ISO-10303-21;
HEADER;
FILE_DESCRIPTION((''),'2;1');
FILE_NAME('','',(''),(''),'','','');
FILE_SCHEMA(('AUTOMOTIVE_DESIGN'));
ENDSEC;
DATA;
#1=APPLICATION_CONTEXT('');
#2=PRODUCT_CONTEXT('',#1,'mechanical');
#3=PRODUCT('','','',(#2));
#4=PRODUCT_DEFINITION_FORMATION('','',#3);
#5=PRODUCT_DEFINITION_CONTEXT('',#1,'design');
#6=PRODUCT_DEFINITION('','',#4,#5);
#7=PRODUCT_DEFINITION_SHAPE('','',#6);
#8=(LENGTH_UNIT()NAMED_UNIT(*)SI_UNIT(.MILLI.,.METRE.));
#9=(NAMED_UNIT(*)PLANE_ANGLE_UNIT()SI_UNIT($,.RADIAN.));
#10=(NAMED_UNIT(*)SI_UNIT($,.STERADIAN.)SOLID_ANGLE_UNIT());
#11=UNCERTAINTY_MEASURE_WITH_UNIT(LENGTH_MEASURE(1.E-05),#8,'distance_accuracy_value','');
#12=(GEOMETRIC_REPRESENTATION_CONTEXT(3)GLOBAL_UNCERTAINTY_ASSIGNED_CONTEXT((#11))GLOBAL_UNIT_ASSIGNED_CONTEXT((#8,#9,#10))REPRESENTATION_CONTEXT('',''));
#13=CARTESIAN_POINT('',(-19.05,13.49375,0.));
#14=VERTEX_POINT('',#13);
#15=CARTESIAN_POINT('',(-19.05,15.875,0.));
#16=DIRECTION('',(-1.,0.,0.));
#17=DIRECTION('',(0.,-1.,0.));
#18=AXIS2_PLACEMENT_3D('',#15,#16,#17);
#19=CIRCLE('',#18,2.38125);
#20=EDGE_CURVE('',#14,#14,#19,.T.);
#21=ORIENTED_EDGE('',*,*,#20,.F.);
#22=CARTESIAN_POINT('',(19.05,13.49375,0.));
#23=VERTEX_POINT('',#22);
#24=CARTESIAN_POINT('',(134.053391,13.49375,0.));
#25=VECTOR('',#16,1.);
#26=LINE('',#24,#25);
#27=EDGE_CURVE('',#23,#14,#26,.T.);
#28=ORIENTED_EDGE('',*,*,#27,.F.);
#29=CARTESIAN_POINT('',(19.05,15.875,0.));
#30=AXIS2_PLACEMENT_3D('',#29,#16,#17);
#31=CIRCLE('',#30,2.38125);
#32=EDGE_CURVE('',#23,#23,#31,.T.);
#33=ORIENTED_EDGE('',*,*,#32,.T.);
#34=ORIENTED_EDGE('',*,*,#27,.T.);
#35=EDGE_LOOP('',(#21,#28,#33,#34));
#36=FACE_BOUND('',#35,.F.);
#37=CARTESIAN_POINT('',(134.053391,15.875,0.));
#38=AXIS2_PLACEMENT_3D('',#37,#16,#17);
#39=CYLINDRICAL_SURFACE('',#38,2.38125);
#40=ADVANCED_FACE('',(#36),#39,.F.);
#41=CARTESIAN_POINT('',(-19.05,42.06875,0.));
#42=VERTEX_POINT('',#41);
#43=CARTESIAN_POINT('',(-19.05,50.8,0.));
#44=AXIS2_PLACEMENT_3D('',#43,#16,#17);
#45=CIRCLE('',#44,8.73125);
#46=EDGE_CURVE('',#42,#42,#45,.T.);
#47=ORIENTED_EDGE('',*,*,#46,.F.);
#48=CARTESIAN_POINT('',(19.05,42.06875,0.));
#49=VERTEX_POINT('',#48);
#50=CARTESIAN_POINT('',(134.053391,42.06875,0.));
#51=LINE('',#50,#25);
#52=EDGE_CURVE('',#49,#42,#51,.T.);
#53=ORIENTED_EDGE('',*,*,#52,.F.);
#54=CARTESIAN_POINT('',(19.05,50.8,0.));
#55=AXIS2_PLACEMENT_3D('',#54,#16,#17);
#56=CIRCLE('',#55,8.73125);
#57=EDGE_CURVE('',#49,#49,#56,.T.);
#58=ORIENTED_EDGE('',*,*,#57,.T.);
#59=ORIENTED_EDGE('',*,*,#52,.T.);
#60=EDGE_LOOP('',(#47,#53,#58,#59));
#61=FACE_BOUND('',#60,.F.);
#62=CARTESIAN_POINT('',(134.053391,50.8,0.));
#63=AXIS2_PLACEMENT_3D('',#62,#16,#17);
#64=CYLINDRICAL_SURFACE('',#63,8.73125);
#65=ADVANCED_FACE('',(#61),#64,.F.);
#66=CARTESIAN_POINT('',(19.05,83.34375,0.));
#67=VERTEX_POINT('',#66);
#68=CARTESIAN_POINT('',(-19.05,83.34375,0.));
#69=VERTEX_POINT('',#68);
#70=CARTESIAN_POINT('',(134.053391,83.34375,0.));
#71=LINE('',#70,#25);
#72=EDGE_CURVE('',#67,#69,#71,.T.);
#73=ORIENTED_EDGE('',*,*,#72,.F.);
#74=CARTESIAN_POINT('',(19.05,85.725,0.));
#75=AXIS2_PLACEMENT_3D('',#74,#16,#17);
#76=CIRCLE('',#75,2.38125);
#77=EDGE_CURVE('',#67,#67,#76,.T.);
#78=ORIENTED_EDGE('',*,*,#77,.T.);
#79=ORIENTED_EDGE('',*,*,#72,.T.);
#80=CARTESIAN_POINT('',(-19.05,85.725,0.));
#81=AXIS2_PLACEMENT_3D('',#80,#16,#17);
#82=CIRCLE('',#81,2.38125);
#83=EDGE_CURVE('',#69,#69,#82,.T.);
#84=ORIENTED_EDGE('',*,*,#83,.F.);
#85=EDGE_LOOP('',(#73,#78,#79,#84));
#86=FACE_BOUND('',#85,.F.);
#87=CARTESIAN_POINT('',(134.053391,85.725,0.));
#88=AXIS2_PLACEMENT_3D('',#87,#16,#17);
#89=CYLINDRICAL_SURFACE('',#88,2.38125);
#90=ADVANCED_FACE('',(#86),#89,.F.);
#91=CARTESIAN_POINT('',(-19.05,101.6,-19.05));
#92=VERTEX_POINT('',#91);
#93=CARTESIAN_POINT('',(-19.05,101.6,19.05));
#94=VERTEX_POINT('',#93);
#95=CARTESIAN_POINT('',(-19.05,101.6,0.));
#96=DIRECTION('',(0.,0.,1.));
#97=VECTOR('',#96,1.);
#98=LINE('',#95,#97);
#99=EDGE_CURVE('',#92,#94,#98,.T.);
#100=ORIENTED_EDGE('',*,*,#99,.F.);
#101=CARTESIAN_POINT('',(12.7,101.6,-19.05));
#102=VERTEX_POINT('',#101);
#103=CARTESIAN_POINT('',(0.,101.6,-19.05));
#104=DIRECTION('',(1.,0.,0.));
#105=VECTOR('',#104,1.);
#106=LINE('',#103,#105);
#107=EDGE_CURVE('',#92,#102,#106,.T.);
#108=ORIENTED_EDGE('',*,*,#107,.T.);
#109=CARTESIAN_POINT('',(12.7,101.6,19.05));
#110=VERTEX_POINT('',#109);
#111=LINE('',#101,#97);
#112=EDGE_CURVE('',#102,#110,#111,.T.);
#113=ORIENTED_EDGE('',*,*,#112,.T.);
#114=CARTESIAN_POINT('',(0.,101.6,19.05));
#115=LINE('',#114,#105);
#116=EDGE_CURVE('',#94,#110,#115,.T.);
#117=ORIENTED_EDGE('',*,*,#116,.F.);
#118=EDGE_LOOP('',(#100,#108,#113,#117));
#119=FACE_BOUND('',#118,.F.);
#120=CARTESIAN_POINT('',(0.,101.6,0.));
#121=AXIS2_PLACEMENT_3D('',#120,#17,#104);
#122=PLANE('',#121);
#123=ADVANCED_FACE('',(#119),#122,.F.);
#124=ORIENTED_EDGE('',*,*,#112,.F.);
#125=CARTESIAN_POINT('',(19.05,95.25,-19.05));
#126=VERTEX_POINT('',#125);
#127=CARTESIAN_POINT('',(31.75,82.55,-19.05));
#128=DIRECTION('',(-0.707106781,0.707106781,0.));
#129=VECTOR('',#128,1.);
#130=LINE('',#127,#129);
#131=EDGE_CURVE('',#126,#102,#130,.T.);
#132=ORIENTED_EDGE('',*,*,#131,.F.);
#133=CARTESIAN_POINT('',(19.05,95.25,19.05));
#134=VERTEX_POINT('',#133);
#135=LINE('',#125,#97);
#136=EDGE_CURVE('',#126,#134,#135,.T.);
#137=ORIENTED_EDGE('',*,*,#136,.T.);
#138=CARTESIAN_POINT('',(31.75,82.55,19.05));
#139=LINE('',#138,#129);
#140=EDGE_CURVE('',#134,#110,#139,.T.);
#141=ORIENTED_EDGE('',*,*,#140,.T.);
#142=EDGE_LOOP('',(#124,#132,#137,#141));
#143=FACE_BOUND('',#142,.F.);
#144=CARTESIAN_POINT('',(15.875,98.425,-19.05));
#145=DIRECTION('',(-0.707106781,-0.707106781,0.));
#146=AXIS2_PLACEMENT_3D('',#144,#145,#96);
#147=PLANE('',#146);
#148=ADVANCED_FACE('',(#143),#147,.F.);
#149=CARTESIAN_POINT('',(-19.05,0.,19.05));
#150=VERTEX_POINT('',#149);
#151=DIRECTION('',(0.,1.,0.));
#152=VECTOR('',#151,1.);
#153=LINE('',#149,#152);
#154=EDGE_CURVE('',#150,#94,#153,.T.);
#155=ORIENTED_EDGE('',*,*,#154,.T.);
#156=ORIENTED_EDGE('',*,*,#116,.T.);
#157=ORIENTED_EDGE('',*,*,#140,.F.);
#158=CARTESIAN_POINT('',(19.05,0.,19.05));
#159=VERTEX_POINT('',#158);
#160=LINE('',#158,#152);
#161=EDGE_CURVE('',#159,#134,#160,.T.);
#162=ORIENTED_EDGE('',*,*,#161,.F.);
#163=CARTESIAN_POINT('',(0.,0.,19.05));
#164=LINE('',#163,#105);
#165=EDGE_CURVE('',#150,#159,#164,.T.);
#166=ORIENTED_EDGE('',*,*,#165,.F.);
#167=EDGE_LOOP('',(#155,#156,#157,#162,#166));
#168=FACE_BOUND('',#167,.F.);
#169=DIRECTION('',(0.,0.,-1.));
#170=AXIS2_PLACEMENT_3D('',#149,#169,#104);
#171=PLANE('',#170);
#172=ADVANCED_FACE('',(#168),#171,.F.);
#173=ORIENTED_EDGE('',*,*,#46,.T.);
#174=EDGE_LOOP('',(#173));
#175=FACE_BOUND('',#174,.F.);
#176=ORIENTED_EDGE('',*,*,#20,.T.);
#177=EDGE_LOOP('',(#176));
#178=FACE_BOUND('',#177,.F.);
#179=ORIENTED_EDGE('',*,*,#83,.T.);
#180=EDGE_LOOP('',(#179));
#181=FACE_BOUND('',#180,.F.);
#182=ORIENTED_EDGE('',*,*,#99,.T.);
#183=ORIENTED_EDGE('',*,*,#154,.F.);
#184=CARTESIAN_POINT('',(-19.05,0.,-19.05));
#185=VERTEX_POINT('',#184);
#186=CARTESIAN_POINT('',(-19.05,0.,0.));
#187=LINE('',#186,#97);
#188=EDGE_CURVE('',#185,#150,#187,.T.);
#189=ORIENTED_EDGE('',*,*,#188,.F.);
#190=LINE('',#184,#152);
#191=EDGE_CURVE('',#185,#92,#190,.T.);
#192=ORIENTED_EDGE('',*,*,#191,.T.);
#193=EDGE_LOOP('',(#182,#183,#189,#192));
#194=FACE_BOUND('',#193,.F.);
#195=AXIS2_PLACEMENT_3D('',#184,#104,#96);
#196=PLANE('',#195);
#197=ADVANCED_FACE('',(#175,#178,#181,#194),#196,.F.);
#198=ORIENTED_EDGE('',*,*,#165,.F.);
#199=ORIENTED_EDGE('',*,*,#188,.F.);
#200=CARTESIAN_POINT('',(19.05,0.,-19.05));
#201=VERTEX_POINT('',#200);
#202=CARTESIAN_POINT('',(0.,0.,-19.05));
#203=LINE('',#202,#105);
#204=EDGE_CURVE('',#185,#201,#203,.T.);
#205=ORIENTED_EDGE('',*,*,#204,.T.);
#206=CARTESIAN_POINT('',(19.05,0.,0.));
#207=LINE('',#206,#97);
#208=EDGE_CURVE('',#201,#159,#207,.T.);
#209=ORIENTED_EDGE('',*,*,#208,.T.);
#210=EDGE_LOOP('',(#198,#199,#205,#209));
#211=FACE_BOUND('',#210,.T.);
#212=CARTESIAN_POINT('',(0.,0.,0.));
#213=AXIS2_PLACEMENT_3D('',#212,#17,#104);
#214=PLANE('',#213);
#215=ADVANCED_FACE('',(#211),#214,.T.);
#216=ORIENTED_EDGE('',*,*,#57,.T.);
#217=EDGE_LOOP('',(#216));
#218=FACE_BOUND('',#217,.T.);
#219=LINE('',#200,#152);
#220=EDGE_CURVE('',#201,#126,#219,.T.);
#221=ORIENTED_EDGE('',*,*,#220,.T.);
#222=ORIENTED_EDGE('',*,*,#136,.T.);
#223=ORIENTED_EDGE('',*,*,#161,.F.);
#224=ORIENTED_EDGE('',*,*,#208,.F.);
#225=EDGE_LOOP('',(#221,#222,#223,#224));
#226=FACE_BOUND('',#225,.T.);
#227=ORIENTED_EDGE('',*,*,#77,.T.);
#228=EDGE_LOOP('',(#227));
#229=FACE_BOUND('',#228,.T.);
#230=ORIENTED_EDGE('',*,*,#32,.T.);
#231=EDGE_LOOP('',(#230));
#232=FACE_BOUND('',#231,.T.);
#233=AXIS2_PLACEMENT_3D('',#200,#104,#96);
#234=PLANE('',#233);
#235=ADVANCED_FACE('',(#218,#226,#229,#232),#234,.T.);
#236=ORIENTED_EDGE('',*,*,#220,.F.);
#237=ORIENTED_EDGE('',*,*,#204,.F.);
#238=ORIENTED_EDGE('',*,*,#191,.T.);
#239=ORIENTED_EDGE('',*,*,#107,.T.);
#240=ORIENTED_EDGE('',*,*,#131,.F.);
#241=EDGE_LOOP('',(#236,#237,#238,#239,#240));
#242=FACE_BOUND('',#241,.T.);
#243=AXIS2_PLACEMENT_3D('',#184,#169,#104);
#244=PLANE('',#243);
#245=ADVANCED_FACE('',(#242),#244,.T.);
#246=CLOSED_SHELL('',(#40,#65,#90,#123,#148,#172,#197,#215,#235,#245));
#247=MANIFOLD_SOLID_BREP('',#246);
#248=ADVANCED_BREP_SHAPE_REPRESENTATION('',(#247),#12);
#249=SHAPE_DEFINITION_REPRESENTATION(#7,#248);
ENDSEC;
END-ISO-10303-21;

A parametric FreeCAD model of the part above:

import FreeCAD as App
import Part
import Sketcher

V = App.Vector
Q = App.Units.Quantity


def edges_at(feature, points):
    """Names of the edges that pass closest to the given points."""
    edges = feature.Shape.Edges
    near = lambda p: min(range(len(edges)), key=lambda i: edges[i].distToShape(Part.Vertex(*p))[0])
    return sorted({f"Edge{near(p) + 1}" for p in points})

doc = App.newDocument("Part")
body = doc.addObject("PartDesign::Body", "Body")

# Sketch on XZ plane
sketch1 = doc.addObject("Sketcher::SketchObject", "Sketch")
body.addObject(sketch1)
sketch1.AttachmentSupport = (doc.XZ_Plane, [""])
sketch1.MapMode = "FlatFace"
sketch1.addGeometry([
    Part.LineSegment(V(-19.05, 19.05, 0), V(-19.05, -19.05, 0)),
    Part.LineSegment(V(-19.05, -19.05, 0), V(19.05, -19.05, 0)),
    Part.LineSegment(V(19.05, -19.05, 0), V(19.05, 19.05, 0)),
    Part.LineSegment(V(19.05, 19.05, 0), V(-19.05, 19.05, 0)),
], False)
sketch1.addConstraint([
    Sketcher.Constraint("Coincident", 0, 2, 1, 1),
    Sketcher.Constraint("Coincident", 1, 2, 2, 1),
    Sketcher.Constraint("Coincident", 2, 2, 3, 1),
    Sketcher.Constraint("Coincident", 3, 2, 0, 1),
    Sketcher.Constraint("Vertical", 0),
    Sketcher.Constraint("Horizontal", 1),
    Sketcher.Constraint("Vertical", 2),
    Sketcher.Constraint("Horizontal", 3),
    Sketcher.Constraint("Symmetric", 0, 2, 2, 2, -1, 1),
    Sketcher.Constraint("Equal", 3, 0),
    Sketcher.Constraint("DistanceX", 1, 1, 1, 2, Q("1.5 in")),
])
pad1 = doc.addObject("PartDesign::Pad", "Pad")
body.addObject(pad1)
pad1.Profile = sketch1
pad1.Length = Q("4 in")
pad1.Reversed = True
doc.recompute()

chamfer = doc.addObject("PartDesign::Chamfer", "Chamfer")
body.addObject(chamfer)
chamfer.Base = (pad1, edges_at(pad1, [(19.05, 101.6, 0)]))
chamfer.Size = Q("0.25 in")

# Sketch on YZ plane
sketch2 = doc.addObject("Sketcher::SketchObject", "Sketch001")
body.addObject(sketch2)
sketch2.AttachmentSupport = (doc.YZ_Plane, [""])
sketch2.MapMode = "FlatFace"
sketch2.AttachmentOffset = App.Placement(V(0, 0, 0.75 * 25.4), App.Rotation())
sketch2.addGeometry(Part.Circle(V(50.8, 0, 0), V(0, 0, 1), 8.73125), False)
sketch2.addConstraint([
    Sketcher.Constraint("PointOnObject", 0, 3, -1),
    Sketcher.Constraint("Diameter", 0, Q("0.6875 in")),
    Sketcher.Constraint("DistanceX", -1, 1, 0, 3, Q("2 in")),
])
doc.recompute()
hole = doc.addObject("PartDesign::Hole", "Hole")
body.addObject(hole)
hole.Profile = sketch2
hole.ThreadType = "None"
hole.Diameter = Q("0.6875 in")
hole.DepthType = "ThroughAll"

# Sketch on YZ plane
sketch3 = doc.addObject("Sketcher::SketchObject", "Sketch002")
body.addObject(sketch3)
sketch3.AttachmentSupport = (doc.YZ_Plane, [""])
sketch3.MapMode = "FlatFace"
sketch3.AttachmentOffset = App.Placement(V(0, 0, 0.75 * 25.4), App.Rotation())
sketch3.addGeometry([
    Part.Circle(V(15.875, 0, 0), V(0, 0, 1), 2.38125),
    Part.Circle(V(85.725, 0, 0), V(0, 0, 1), 2.38125),
], False)
sketch3.addConstraint([
    Sketcher.Constraint("Equal", 0, 1),
    Sketcher.Constraint("PointOnObject", 0, 3, -1),
    Sketcher.Constraint("PointOnObject", 1, 3, -1),
    Sketcher.Constraint("Diameter", 0, Q("0.1875 in")),
    Sketcher.Constraint("DistanceX", 0, 3, 1, 3, Q("2.75 in")),
    Sketcher.Constraint("DistanceX", -1, 1, 0, 3, Q("0.625 in")),
])
doc.recompute()
hole2 = doc.addObject("PartDesign::Hole", "Hole001")
body.addObject(hole2)
hole2.Profile = sketch3
hole2.ThreadType = "None"
hole2.Diameter = Q("0.1875 in")
hole2.DepthType = "ThroughAll"

doc.recompute()
